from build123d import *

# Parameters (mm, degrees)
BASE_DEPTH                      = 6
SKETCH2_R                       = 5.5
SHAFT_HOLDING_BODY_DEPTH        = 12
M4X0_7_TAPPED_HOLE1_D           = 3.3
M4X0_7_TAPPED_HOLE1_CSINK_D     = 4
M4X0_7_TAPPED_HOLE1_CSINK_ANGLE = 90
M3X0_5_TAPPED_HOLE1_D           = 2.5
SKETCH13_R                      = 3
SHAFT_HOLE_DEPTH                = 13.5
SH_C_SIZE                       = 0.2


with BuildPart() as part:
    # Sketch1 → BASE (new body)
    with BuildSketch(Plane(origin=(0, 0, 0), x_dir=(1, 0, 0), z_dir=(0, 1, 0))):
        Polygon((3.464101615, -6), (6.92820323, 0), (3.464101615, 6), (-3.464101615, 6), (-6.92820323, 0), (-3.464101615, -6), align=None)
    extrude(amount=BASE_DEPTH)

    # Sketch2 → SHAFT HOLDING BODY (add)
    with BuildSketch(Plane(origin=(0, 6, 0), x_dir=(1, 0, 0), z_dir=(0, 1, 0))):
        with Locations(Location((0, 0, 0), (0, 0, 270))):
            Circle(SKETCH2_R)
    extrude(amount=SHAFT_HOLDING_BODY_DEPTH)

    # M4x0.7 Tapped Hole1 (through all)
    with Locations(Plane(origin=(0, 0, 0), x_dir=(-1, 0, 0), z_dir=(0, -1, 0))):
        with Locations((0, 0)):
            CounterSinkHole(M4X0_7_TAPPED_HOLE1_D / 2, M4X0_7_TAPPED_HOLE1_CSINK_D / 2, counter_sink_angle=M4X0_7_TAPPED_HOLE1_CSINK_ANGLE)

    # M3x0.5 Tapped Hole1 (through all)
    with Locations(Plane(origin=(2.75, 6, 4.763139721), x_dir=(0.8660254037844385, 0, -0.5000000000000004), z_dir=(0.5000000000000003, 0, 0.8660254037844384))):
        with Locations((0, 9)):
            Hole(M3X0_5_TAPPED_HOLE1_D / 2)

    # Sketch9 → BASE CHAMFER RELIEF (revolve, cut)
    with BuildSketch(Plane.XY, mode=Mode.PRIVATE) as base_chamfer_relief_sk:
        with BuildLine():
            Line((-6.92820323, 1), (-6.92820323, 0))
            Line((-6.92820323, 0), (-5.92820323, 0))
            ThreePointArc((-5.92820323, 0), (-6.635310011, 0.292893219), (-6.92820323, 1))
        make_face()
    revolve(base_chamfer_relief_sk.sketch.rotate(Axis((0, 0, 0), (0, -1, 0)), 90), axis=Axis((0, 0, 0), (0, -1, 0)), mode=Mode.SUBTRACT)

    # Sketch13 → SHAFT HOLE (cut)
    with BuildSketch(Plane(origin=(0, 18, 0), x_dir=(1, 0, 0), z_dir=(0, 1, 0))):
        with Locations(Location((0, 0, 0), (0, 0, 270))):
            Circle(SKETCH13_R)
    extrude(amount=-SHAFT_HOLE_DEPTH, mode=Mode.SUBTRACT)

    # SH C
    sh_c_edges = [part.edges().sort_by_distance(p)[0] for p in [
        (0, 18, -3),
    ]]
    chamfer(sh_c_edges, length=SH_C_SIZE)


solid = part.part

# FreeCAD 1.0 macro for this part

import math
import FreeCAD as App
import Part
import Sketcher
Q = App.Units.Quantity


def edges_at(feature, points):
    """Names of the edges that pass closest to the given points."""
    edges = feature.Shape.Edges
    near = lambda p: min(range(len(edges)), key=lambda i: edges[i].distToShape(Part.Vertex(*p))[0])
    return sorted({f"Edge{near(p) + 1}" for p in points})


def add_polygon(sketch, points):
    """Adds a closed chain of lines whose ends are joined by coincident constraints."""
    first, n = sketch.GeometryCount, len(points)
    for a, b in zip(points, points[1:] + points[:1]):
        sketch.addGeometry(Part.LineSegment(App.Vector(*a, 0), App.Vector(*b, 0)), False)
    for i in range(n):
        sketch.addConstraint(Sketcher.Constraint("Coincident", first + i, 2, first + (i + 1) % n, 1))

doc = App.newDocument("Part")
body = doc.addObject("PartDesign::Body", "Body")

sketch1 = doc.addObject("Sketcher::SketchObject", "Sketch")
body.addObject(sketch1)
sketch1.AttachmentSupport = (doc.XZ_Plane, [""])
sketch1.MapMode = "FlatFace"
add_polygon(sketch1, [(3, 6), (7, 0), (3, -6), (-3, -6), (-7, 0), (-3, 6)])
sketch1.addConstraint([
    Sketcher.Constraint("Horizontal", 2),
    Sketcher.Constraint("Horizontal", 5),
    Sketcher.Constraint("Symmetric", 0, 2, 3, 2, -1, 1),
    Sketcher.Constraint("Symmetric", 1, 2, 4, 2, -1, 1),
    Sketcher.Constraint("PointOnObject", 0, 2, -1),
    Sketcher.Constraint("Parallel", 0, 3),
    Sketcher.Constraint("Vertical", 2, 2, 4, 2),
    Sketcher.Constraint("Angle", 0, Q("-60 deg")),
    Sketcher.Constraint("DistanceY", 1, 2, -1, 1, 6.0),
    Sketcher.Constraint("DistanceX", -1, 1, 1, 2, 3.464102),
])
pad1 = doc.addObject("PartDesign::Pad", "Pad")
body.addObject(pad1)
pad1.Profile = sketch1
pad1.Length = 6
pad1.Reversed = True

sketch2 = doc.addObject("Sketcher::SketchObject", "Sketch001")
body.addObject(sketch2)
sketch2.AttachmentSupport = (doc.XZ_Plane, [""])
sketch2.MapMode = "FlatFace"
sketch2.AttachmentOffset = App.Placement(App.Vector(0, 0, -6), App.Rotation())
sketch2.addGeometry(Part.Circle(App.Vector(0, 0, 0), App.Vector(0, 0, 1), 6), False)
sketch2.addConstraint([
    Sketcher.Constraint("Coincident", 0, 3, -1, 1),
    Sketcher.Constraint("Diameter", 0, 11.0),
])
pad2 = doc.addObject("PartDesign::Pad", "Pad001")
body.addObject(pad2)
pad2.Profile = sketch2
pad2.Length = 12
pad2.Reversed = True

sketch3 = doc.addObject("Sketcher::SketchObject", "Sketch002")
body.addObject(sketch3)
sketch3.AttachmentSupport = (doc.XZ_Plane, [""])
sketch3.MapMode = "FlatFace"
sketch3.addGeometry(Part.Circle(App.Vector(0, 0, 0), App.Vector(0, 0, 1), 1.6), False)
sketch3.addConstraint([
    Sketcher.Constraint("Coincident", 0, 3, -1, 1),
    Sketcher.Constraint("Diameter", 0, 3.3),
])
doc.recompute()
hole = doc.addObject("PartDesign::Hole", "Hole")
body.addObject(hole)
hole.Profile = sketch3
hole.ThreadType = "None"
hole.Diameter = 3.3
hole.DepthType = "ThroughAll"
hole.HoleCutType = "Countersink"
hole.HoleCutDiameter = 4
hole.HoleCutCountersinkAngle = 90

sketch4 = doc.addObject("Sketcher::SketchObject", "Sketch003")
body.addObject(sketch4)
sketch4.Placement = App.Placement(App.Vector(2.75, 0, 4.76314), App.Rotation(App.Vector(0.866025404, 0, -0.5), App.Vector(0, 1, 0), App.Vector(0.5, 0, 0.866025404), "ZXY"))
sketch4.addGeometry(Part.Circle(App.Vector(0, 15, 0), App.Vector(0, 0, 1), 1.2), False)
sketch4.addConstraint([
    Sketcher.Constraint("PointOnObject", 0, 3, -2),
    Sketcher.Constraint("Diameter", 0, 2.5),
    Sketcher.Constraint("DistanceY", -1, 1, 0, 3, 15.0),
])
doc.recompute()
hole2 = doc.addObject("PartDesign::Hole", "Hole001")
body.addObject(hole2)
hole2.Profile = sketch4
hole2.ThreadType = "None"
hole2.Diameter = 2.5
hole2.DepthType = "ThroughAll"

sketch5 = doc.addObject("Sketcher::SketchObject", "Sketch004")
body.addObject(sketch5)
sketch5.AttachmentSupport = (doc.XY_Plane, [""])
sketch5.MapMode = "FlatFace"
sketch5.addGeometry([
    Part.LineSegment(App.Vector(-6.9, 1, 0), App.Vector(-6.9, 0, 0)),
    Part.LineSegment(App.Vector(-6.9, 0, 0), App.Vector(-5.9, 0, 0)),
    Part.ArcOfCircle(Part.Circle(App.Vector(-5.9, 1, 0), App.Vector(0, 0, 1), 1), math.radians(-180), math.radians(-90)),
], False)
sketch5.addConstraint([
    Sketcher.Constraint("Coincident", 0, 2, 1, 1),
    Sketcher.Constraint("Tangent", 1, 2, 2, 2),
    Sketcher.Constraint("Tangent", 2, 1, 0, 1),
    Sketcher.Constraint("Vertical", 0),
    Sketcher.Constraint("Horizontal", 1),
    Sketcher.Constraint("PointOnObject", 0, 2, -1),
    Sketcher.Constraint("Radius", 2, 1.0),
    Sketcher.Constraint("DistanceX", 2, 3, -1, 1, 5.928203),
])
groove = doc.addObject("PartDesign::Groove", "Groove")
body.addObject(groove)
groove.Profile = sketch5
groove.ReferenceAxis = (sketch5, ["V_Axis"])
groove.Angle = 360

sketch6 = doc.addObject("Sketcher::SketchObject", "Sketch005")
body.addObject(sketch6)
sketch6.AttachmentSupport = (doc.XZ_Plane, [""])
sketch6.MapMode = "FlatFace"
sketch6.AttachmentOffset = App.Placement(App.Vector(0, 0, -18), App.Rotation())
sketch6.addGeometry(Part.Circle(App.Vector(0, 0, 0), App.Vector(0, 0, 1), 3), False)
sketch6.addConstraint([
    Sketcher.Constraint("Coincident", 0, 3, -1, 1),
    Sketcher.Constraint("Diameter", 0, 6.0),
])
pocket1 = doc.addObject("PartDesign::Pocket", "Pocket")
body.addObject(pocket1)
pocket1.Profile = sketch6
pocket1.Length = 13.5
pocket1.Reversed = True
doc.recompute()

chamfer = doc.addObject("PartDesign::Chamfer", "Chamfer")
body.addObject(chamfer)
chamfer.Base = (pocket1, edges_at(pocket1, [(0, 18, -3)]))
chamfer.Size = 0.2

doc.recompute()
